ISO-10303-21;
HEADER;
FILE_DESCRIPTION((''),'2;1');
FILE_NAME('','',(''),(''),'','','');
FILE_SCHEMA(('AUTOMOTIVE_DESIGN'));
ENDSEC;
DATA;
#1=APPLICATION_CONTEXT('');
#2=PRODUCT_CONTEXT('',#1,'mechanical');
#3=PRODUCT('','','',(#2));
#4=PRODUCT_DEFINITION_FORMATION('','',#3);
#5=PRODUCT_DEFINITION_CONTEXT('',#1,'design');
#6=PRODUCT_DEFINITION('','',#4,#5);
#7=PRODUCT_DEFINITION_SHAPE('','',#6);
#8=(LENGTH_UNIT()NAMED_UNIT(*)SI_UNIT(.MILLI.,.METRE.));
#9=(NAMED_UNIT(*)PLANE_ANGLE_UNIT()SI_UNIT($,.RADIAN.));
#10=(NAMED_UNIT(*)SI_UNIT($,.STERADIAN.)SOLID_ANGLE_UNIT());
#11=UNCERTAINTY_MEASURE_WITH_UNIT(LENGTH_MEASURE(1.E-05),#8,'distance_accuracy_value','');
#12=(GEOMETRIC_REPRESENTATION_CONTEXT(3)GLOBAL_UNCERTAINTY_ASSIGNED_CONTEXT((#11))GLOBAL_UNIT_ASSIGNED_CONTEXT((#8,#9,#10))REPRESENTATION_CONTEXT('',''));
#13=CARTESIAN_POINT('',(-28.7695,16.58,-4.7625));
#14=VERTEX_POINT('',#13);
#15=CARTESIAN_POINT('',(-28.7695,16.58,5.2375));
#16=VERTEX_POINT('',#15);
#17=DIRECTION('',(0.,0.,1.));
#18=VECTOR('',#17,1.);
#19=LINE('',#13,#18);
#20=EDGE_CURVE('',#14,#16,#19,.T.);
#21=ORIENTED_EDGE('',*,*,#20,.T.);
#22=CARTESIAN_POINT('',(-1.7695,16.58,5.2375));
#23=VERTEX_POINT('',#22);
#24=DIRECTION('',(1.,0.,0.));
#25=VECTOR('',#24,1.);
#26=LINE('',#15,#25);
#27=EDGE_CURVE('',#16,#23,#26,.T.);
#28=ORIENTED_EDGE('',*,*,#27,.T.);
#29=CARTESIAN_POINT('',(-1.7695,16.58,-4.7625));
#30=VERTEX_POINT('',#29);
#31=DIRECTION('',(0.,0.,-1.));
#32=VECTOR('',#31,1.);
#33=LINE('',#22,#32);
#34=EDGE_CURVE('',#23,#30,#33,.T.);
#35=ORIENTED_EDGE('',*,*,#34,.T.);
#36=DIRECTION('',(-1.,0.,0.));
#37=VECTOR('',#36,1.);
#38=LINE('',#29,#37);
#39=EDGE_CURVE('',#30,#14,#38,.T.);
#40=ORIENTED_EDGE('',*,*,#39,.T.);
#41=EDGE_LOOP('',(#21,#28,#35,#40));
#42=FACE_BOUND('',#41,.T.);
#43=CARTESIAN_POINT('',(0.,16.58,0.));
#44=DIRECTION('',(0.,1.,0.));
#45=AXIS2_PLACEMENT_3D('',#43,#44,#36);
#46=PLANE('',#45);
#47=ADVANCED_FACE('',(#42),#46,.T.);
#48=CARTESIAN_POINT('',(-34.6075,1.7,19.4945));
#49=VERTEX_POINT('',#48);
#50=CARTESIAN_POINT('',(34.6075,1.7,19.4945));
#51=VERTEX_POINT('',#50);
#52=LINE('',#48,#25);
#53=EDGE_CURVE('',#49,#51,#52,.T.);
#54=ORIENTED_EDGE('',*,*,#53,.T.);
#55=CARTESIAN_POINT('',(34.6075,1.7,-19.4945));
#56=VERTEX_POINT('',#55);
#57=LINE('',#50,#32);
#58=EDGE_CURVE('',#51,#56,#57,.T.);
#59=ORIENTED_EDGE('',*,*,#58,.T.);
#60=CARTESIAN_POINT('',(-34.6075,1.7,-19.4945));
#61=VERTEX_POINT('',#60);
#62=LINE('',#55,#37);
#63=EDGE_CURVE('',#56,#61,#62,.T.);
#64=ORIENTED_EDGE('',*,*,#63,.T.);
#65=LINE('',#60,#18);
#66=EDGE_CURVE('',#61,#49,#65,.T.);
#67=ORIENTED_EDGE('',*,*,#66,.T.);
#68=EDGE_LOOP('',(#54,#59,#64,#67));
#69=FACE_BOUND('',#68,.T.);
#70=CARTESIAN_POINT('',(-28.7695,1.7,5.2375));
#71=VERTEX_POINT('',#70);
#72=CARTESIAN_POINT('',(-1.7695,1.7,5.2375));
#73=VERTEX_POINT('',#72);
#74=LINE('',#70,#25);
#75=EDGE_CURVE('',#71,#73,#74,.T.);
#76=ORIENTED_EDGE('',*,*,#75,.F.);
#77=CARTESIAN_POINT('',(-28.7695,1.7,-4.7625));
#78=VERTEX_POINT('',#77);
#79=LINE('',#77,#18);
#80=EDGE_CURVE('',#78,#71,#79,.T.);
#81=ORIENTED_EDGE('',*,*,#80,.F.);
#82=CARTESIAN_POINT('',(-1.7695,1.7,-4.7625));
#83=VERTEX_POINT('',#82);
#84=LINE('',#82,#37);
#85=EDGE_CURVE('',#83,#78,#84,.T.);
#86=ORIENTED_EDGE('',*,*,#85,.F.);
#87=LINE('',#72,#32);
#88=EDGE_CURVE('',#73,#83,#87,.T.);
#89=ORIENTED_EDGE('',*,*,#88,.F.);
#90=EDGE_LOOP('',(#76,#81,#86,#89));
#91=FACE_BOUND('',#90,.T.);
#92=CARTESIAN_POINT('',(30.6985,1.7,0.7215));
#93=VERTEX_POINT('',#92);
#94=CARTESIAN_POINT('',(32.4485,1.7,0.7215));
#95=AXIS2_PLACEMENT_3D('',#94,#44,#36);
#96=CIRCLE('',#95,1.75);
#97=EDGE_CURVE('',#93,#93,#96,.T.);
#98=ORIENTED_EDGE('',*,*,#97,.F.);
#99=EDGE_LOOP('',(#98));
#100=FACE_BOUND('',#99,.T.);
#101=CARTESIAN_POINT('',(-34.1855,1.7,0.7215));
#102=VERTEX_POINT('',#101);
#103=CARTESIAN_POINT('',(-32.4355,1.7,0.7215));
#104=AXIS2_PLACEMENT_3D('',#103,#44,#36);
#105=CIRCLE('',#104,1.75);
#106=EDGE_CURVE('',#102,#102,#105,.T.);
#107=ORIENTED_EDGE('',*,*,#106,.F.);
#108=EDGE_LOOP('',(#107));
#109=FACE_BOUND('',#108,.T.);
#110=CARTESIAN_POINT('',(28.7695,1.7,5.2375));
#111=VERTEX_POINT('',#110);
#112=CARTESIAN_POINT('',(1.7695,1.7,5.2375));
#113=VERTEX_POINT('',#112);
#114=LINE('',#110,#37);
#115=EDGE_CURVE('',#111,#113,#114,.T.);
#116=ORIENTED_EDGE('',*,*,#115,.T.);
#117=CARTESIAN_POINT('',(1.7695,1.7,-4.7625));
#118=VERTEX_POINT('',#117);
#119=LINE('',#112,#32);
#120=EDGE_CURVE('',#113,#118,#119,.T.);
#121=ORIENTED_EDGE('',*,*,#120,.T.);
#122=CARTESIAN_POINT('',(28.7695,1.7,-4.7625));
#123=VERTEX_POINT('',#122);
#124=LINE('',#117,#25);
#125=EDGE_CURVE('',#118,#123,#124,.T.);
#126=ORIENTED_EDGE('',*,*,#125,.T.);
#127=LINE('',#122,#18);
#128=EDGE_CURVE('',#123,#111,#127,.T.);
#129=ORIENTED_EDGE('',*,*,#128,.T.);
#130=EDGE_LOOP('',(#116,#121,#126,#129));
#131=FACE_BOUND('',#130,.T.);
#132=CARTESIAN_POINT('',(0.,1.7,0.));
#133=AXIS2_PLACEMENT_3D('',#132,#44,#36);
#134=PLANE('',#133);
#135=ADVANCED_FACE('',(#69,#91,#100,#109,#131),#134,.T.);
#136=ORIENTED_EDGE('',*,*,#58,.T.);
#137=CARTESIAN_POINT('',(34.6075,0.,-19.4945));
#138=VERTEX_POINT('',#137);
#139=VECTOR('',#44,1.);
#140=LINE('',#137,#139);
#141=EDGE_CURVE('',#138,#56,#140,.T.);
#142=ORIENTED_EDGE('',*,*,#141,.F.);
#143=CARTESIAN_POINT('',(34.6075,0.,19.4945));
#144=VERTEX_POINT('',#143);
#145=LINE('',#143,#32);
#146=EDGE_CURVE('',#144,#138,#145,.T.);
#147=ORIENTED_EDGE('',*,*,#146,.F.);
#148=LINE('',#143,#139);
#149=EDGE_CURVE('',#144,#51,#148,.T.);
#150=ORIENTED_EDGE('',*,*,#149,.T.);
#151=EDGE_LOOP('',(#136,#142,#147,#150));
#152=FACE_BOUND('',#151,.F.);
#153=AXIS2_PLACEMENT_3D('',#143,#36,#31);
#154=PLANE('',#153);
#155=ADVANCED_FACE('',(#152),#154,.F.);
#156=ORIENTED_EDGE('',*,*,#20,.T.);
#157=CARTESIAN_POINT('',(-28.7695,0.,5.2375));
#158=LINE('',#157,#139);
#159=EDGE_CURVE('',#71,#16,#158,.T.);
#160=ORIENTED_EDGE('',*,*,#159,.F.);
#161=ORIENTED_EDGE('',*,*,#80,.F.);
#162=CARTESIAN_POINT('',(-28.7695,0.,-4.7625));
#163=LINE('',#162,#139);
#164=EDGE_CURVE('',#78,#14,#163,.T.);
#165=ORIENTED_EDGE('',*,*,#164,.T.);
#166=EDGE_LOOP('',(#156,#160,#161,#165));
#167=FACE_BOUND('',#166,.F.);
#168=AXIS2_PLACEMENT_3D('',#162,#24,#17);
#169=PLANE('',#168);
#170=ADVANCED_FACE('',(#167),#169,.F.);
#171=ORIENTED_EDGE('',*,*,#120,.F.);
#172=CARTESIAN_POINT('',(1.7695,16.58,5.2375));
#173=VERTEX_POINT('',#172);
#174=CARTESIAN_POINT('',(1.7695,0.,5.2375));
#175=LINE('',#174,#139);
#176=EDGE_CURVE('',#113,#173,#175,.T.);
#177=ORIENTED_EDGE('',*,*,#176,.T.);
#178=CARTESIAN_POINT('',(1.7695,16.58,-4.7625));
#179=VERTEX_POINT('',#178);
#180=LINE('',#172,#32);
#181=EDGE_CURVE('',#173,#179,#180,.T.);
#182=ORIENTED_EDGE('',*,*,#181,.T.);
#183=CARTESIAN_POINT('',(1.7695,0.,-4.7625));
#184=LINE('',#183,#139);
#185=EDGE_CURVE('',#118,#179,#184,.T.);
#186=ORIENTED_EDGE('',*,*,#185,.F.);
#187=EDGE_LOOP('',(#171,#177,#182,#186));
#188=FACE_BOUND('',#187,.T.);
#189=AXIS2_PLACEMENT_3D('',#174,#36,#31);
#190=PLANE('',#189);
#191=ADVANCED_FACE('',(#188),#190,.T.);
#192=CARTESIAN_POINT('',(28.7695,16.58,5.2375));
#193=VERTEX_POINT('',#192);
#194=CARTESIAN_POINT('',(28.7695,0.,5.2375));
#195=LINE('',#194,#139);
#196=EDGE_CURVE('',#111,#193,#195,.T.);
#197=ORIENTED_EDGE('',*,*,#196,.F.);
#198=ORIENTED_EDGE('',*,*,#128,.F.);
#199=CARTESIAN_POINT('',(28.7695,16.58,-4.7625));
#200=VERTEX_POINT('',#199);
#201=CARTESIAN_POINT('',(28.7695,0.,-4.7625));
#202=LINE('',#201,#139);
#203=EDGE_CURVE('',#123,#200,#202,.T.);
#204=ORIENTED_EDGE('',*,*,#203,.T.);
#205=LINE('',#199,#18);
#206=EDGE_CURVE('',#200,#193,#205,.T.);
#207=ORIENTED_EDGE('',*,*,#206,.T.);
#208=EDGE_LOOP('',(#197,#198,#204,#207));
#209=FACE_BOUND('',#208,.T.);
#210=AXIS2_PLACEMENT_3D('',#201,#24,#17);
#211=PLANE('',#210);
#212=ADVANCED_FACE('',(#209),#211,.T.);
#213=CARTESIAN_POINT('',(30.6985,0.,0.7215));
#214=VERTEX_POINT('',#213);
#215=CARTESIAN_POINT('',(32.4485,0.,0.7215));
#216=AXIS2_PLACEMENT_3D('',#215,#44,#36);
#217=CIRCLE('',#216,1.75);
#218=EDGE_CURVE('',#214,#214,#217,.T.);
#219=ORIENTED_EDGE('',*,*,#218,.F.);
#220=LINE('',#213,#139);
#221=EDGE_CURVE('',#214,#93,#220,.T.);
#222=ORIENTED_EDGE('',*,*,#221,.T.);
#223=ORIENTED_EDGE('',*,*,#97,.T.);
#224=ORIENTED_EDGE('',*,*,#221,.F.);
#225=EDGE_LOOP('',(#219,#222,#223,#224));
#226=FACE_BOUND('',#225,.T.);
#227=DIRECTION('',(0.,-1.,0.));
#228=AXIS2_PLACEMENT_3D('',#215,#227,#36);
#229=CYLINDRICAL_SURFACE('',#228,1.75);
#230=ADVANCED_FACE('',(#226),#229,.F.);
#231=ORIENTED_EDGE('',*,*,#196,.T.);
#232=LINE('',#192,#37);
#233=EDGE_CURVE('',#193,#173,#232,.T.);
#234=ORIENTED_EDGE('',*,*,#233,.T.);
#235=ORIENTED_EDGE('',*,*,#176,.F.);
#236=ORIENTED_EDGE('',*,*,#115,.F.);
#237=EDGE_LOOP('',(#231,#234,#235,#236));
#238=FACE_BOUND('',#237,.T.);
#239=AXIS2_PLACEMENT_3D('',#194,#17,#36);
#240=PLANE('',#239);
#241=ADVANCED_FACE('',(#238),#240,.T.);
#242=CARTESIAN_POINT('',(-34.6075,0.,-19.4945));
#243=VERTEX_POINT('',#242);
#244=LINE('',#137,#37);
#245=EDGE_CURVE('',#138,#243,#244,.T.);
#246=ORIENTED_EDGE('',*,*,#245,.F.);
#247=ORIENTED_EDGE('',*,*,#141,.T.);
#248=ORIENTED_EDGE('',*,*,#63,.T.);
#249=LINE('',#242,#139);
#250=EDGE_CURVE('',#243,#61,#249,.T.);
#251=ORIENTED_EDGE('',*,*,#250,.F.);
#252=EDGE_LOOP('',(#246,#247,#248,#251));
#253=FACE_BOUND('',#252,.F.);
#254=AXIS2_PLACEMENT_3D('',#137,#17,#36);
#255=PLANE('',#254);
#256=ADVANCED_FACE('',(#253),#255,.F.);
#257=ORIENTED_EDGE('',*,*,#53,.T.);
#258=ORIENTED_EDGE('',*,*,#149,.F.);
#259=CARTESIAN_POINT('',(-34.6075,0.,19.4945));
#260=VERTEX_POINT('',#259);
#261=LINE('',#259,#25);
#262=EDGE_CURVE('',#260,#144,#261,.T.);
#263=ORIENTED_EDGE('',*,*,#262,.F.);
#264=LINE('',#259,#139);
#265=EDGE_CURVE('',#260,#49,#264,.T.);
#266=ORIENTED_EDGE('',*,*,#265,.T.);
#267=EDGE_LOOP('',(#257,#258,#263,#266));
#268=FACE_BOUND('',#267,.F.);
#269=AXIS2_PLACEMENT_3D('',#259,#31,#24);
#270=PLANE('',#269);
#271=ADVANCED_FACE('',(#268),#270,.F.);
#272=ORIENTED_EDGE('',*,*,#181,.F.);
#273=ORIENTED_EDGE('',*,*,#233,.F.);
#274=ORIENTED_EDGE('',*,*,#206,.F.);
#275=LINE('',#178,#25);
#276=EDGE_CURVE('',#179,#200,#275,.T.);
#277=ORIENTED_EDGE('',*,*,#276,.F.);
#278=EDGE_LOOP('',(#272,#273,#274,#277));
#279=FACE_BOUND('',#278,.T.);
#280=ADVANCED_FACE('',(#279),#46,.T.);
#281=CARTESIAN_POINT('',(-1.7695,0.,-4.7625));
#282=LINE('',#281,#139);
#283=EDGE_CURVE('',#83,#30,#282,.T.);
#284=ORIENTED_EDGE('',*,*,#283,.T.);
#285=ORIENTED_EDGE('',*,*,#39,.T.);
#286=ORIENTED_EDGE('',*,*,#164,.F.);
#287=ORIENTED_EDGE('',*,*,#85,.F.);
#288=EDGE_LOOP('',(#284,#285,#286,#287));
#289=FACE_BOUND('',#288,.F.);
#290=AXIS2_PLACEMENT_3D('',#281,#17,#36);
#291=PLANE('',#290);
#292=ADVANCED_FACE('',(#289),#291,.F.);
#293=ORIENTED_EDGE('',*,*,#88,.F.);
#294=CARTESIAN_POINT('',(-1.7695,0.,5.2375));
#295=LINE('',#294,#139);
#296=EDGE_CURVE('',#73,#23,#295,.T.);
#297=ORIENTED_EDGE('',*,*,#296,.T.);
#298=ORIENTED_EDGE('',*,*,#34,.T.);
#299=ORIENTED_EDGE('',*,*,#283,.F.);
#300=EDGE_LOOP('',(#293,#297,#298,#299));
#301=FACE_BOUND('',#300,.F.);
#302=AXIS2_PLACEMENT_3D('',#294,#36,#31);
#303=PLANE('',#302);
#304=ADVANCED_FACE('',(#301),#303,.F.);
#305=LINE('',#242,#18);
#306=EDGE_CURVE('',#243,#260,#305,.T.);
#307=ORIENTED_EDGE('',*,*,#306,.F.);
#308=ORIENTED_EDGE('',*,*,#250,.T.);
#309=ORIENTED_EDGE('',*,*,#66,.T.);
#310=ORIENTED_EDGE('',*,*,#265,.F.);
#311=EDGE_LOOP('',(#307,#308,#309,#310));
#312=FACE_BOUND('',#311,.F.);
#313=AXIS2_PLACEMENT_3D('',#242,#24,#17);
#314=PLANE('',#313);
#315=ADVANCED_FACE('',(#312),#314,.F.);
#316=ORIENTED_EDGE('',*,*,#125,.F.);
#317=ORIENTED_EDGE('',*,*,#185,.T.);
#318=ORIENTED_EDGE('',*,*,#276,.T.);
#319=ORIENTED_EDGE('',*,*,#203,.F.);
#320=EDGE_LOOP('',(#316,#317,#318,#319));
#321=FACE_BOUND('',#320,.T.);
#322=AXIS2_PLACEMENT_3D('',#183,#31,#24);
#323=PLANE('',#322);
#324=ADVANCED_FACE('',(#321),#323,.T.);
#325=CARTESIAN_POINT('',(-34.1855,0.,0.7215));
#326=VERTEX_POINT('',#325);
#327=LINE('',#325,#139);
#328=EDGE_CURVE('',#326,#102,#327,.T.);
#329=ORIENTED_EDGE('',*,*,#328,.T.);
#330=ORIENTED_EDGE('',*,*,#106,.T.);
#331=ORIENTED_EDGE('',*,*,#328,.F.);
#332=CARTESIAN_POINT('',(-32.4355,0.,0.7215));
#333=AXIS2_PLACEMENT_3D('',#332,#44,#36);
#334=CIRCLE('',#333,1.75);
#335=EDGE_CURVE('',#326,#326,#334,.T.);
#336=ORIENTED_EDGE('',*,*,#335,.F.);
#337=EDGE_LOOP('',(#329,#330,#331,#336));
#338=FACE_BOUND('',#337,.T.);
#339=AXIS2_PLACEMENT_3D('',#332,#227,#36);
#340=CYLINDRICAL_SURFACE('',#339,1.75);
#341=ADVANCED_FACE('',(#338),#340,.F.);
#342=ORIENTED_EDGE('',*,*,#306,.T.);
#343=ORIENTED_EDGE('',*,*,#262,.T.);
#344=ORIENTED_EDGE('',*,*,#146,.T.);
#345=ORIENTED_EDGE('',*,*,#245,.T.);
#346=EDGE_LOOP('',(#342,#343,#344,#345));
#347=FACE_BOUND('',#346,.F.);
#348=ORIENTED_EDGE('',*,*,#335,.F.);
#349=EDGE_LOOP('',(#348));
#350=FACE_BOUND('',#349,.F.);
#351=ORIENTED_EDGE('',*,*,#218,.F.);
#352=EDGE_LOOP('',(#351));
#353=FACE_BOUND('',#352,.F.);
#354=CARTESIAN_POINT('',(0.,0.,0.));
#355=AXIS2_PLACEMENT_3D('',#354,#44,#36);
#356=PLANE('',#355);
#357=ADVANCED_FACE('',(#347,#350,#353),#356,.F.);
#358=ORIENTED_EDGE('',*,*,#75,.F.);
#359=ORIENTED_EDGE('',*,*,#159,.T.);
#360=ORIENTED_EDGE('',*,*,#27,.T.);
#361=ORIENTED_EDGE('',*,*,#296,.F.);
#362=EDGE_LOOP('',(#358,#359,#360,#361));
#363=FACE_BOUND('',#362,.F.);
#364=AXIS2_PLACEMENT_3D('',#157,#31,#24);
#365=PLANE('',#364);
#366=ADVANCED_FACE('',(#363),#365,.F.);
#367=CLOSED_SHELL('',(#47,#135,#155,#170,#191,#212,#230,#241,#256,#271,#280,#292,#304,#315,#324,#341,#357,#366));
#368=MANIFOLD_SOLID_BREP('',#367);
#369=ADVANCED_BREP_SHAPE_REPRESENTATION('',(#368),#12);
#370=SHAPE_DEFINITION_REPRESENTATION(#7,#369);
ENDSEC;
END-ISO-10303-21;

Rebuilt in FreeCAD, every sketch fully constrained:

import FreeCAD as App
import Part
import Sketcher

V = App.Vector
Q = App.Units.Quantity


def add_polygon(sketch, points):
    """Adds a closed chain of lines whose ends are joined by coincident constraints."""
    first, n = sketch.GeometryCount, len(points)
    for a, b in zip(points, points[1:] + points[:1]):
        sketch.addGeometry(Part.LineSegment(App.Vector(*a, 0), App.Vector(*b, 0)), False)
    for i in range(n):
        sketch.addConstraint(Sketcher.Constraint("Coincident", first + i, 2, first + (i + 1) % n, 1))

doc = App.newDocument("Part")
body = doc.addObject("PartDesign::Body", "Body")

# Sketch on XZ plane
sketch1 = body.newObject("Sketcher::SketchObject", "Sketch")
sketch1.AttachmentSupport = (doc.getObject("XZ_Plane"), [""])
sketch1.MapMode = "FlatFace"
add_polygon(sketch1, [(-34.6075, -19.4945), (-34.6075, 19.4945), (34.6075, 19.4945), (34.6075, -19.4945)])  # lines 0-3
sketch1.addGeometry(Part.Circle(V(32.4485, 0.7215, 0), V(0, 0, 1), 1.75), False)  # 4
add_polygon(sketch1, [(28.7695, -4.7625), (28.7695, 5.2375), (1.7695, 5.2375), (1.7695, -4.7625)])  # lines 5-8
add_polygon(sketch1, [(-1.7695, 5.2375), (-28.7695, 5.2375), (-28.7695, -4.7625), (-1.7695, -4.7625)])  # lines 9-12
sketch1.addGeometry(Part.Circle(V(-32.4355, 0.7215, 0), V(0, 0, 1), 1.75), False)  # 13
sketch1.addConstraint(Sketcher.Constraint("Vertical", 0))
sketch1.addConstraint(Sketcher.Constraint("Horizontal", 1))
sketch1.addConstraint(Sketcher.Constraint("Vertical", 2))
sketch1.addConstraint(Sketcher.Constraint("Horizontal", 3))
sketch1.addConstraint(Sketcher.Constraint("Vertical", 5))
sketch1.addConstraint(Sketcher.Constraint("Horizontal", 6))
sketch1.addConstraint(Sketcher.Constraint("Vertical", 7))
sketch1.addConstraint(Sketcher.Constraint("Horizontal", 8))
sketch1.addConstraint(Sketcher.Constraint("Horizontal", 9))
sketch1.addConstraint(Sketcher.Constraint("Vertical", 10))
sketch1.addConstraint(Sketcher.Constraint("Horizontal", 11))
sketch1.addConstraint(Sketcher.Constraint("Vertical", 12))
sketch1.addConstraint(Sketcher.Constraint("Equal", 4, 13))
sketch1.addConstraint(Sketcher.Constraint("Symmetric", 0, 2, 2, 2, -1, 1))
sketch1.addConstraint(Sketcher.Constraint("Symmetric", 5, 2, 9, 2, -2))
sketch1.addConstraint(Sketcher.Constraint("Symmetric", 7, 2, 11, 2, -2))
sketch1.addConstraint(Sketcher.Constraint("Horizontal", 4, 3, 13, 3))
sketch1.addConstraint(Sketcher.Constraint("Diameter", 4, Q("0.1378 in")))
sketch1.addConstraint(Sketcher.Constraint("DistanceX", 1, 1, 1, 2, Q("2.725 in")))
sketch1.addConstraint(Sketcher.Constraint("DistanceX", 6, 2, 6, 1, Q("1.063 in")))
sketch1.addConstraint(Sketcher.Constraint("DistanceY", 0, 1, 0, 2, Q("1.535 in")))
sketch1.addConstraint(Sketcher.Constraint("DistanceY", 5, 1, 5, 2, Q("0.3937 in")))
sketch1.addConstraint(Sketcher.Constraint("DistanceX", 13, 3, 4, 3, Q("2.5545 in")))
sketch1.addConstraint(Sketcher.Constraint("DistanceX", 0, 2, 13, 3, Q("0.0855 in")))
sketch1.addConstraint(Sketcher.Constraint("DistanceY", 2, 2, 4, 3, Q("0.7959 in")))
sketch1.addConstraint(Sketcher.Constraint("DistanceY", 2, 2, 7, 2, Q("0.58 in")))
sketch1.addConstraint(Sketcher.Constraint("DistanceX", -1, 1, 5, 2, 28.7695))
pad1 = body.newObject("PartDesign::Pad", "Pad")
pad1.Profile = sketch1
pad1.Length = 1.7
pad1.Reversed = True

# Sketch on XZ plane
sketch2 = body.newObject("Sketcher::SketchObject", "Sketch001")
sketch2.AttachmentSupport = (doc.getObject("XZ_Plane"), [""])
sketch2.MapMode = "FlatFace"
add_polygon(sketch2, [(-28.7695, -4.7625), (-28.7695, 5.2375), (-1.7695, 5.2375), (-1.7695, -4.7625)])  # lines 0-3
add_polygon(sketch2, [(1.7695, 5.2375), (28.7695, 5.2375), (28.7695, -4.7625), (1.7695, -4.7625)])  # lines 4-7
sketch2.addConstraint(Sketcher.Constraint("Vertical", 0))
sketch2.addConstraint(Sketcher.Constraint("Horizontal", 1))
sketch2.addConstraint(Sketcher.Constraint("Vertical", 2))
sketch2.addConstraint(Sketcher.Constraint("Horizontal", 3))
sketch2.addConstraint(Sketcher.Constraint("Horizontal", 4))
sketch2.addConstraint(Sketcher.Constraint("Vertical", 5))
sketch2.addConstraint(Sketcher.Constraint("Horizontal", 6))
sketch2.addConstraint(Sketcher.Constraint("Vertical", 7))
sketch2.addConstraint(Sketcher.Constraint("Symmetric", 0, 2, 4, 2, -2))
sketch2.addConstraint(Sketcher.Constraint("Symmetric", 2, 2, 6, 2, -2))
sketch2.addConstraint(Sketcher.Constraint("DistanceX", 1, 1, 1, 2, Q("1.063 in")))
sketch2.addConstraint(Sketcher.Constraint("DistanceY", 0, 1, 0, 2, Q("0.3937 in")))
sketch2.addConstraint(Sketcher.Constraint("DistanceY", 2, 2, -1, 1, Q("0.1875 in")))
sketch2.addConstraint(Sketcher.Constraint("DistanceX", 0, 2, -1, 1, 28.7695))
pad2 = body.newObject("PartDesign::Pad", "Pad001")
pad2.Profile = sketch2
pad2.Length = 16.58
pad2.Reversed = True

doc.recompute()
